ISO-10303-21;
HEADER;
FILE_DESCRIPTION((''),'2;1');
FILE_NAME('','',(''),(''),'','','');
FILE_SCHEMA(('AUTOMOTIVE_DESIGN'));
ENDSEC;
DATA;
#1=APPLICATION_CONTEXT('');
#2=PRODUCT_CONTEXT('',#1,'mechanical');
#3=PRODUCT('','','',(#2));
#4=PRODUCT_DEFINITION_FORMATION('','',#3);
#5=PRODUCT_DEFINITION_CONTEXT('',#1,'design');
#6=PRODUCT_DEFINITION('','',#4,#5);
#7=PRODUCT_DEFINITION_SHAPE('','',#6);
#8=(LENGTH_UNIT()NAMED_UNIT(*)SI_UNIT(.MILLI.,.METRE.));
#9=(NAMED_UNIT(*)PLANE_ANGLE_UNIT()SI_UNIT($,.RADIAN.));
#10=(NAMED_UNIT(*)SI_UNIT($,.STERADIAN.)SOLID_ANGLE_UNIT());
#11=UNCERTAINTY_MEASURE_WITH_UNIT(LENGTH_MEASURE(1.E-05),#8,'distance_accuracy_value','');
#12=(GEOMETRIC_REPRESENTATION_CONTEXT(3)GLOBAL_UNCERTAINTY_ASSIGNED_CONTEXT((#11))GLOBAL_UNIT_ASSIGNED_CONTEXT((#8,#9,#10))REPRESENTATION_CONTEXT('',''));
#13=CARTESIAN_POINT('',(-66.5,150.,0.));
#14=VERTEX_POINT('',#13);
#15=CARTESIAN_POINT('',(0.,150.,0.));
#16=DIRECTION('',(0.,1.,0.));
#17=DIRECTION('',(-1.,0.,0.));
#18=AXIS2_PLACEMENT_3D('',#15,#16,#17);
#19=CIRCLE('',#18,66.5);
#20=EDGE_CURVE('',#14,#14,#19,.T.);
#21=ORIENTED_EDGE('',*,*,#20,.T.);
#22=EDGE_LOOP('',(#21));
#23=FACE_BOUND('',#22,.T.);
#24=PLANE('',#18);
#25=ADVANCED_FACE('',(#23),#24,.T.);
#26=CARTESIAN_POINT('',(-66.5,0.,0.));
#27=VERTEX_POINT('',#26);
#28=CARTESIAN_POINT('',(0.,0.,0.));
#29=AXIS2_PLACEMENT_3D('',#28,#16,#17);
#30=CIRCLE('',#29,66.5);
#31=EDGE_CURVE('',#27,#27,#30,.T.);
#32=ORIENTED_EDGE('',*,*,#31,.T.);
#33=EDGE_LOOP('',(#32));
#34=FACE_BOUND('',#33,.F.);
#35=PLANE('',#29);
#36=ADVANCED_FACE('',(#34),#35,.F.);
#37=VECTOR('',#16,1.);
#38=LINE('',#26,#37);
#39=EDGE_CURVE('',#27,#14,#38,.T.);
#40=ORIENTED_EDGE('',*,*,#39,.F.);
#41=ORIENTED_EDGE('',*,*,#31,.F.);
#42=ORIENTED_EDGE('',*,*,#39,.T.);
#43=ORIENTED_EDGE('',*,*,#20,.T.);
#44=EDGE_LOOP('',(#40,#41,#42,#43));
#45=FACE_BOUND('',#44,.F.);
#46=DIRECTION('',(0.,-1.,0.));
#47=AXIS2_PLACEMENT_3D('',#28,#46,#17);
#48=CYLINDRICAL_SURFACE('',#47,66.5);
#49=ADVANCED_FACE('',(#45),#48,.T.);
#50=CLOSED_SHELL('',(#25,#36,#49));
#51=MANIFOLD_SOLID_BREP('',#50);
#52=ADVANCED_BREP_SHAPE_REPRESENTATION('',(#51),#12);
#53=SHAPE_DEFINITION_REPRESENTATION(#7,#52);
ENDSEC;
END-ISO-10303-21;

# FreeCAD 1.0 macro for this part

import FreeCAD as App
import Part
import Sketcher
Q = App.Units.Quantity

doc = App.newDocument("Part")
body = doc.addObject("PartDesign::Body", "Body")

# Sketch on XZ plane
sketch1 = body.newObject("Sketcher::SketchObject", "Sketch")
sketch1.AttachmentSupport = (doc.getObject("XZ_Plane"), [""])
sketch1.MapMode = "FlatFace"
sketch1.addGeometry(Part.Circle(App.Vector(0, 0, 0), App.Vector(0, 0, 1), 66.5), False)
sketch1.addConstraint([
    Sketcher.Constraint("Coincident", 0, 3, -1, 1),
    Sketcher.Constraint("Diameter", 0, Q("133 mm")),
])
pad1 = body.newObject("PartDesign::Pad", "Pad")
pad1.Profile = sketch1
pad1.Length = 150
pad1.Reversed = True

doc.recompute()
